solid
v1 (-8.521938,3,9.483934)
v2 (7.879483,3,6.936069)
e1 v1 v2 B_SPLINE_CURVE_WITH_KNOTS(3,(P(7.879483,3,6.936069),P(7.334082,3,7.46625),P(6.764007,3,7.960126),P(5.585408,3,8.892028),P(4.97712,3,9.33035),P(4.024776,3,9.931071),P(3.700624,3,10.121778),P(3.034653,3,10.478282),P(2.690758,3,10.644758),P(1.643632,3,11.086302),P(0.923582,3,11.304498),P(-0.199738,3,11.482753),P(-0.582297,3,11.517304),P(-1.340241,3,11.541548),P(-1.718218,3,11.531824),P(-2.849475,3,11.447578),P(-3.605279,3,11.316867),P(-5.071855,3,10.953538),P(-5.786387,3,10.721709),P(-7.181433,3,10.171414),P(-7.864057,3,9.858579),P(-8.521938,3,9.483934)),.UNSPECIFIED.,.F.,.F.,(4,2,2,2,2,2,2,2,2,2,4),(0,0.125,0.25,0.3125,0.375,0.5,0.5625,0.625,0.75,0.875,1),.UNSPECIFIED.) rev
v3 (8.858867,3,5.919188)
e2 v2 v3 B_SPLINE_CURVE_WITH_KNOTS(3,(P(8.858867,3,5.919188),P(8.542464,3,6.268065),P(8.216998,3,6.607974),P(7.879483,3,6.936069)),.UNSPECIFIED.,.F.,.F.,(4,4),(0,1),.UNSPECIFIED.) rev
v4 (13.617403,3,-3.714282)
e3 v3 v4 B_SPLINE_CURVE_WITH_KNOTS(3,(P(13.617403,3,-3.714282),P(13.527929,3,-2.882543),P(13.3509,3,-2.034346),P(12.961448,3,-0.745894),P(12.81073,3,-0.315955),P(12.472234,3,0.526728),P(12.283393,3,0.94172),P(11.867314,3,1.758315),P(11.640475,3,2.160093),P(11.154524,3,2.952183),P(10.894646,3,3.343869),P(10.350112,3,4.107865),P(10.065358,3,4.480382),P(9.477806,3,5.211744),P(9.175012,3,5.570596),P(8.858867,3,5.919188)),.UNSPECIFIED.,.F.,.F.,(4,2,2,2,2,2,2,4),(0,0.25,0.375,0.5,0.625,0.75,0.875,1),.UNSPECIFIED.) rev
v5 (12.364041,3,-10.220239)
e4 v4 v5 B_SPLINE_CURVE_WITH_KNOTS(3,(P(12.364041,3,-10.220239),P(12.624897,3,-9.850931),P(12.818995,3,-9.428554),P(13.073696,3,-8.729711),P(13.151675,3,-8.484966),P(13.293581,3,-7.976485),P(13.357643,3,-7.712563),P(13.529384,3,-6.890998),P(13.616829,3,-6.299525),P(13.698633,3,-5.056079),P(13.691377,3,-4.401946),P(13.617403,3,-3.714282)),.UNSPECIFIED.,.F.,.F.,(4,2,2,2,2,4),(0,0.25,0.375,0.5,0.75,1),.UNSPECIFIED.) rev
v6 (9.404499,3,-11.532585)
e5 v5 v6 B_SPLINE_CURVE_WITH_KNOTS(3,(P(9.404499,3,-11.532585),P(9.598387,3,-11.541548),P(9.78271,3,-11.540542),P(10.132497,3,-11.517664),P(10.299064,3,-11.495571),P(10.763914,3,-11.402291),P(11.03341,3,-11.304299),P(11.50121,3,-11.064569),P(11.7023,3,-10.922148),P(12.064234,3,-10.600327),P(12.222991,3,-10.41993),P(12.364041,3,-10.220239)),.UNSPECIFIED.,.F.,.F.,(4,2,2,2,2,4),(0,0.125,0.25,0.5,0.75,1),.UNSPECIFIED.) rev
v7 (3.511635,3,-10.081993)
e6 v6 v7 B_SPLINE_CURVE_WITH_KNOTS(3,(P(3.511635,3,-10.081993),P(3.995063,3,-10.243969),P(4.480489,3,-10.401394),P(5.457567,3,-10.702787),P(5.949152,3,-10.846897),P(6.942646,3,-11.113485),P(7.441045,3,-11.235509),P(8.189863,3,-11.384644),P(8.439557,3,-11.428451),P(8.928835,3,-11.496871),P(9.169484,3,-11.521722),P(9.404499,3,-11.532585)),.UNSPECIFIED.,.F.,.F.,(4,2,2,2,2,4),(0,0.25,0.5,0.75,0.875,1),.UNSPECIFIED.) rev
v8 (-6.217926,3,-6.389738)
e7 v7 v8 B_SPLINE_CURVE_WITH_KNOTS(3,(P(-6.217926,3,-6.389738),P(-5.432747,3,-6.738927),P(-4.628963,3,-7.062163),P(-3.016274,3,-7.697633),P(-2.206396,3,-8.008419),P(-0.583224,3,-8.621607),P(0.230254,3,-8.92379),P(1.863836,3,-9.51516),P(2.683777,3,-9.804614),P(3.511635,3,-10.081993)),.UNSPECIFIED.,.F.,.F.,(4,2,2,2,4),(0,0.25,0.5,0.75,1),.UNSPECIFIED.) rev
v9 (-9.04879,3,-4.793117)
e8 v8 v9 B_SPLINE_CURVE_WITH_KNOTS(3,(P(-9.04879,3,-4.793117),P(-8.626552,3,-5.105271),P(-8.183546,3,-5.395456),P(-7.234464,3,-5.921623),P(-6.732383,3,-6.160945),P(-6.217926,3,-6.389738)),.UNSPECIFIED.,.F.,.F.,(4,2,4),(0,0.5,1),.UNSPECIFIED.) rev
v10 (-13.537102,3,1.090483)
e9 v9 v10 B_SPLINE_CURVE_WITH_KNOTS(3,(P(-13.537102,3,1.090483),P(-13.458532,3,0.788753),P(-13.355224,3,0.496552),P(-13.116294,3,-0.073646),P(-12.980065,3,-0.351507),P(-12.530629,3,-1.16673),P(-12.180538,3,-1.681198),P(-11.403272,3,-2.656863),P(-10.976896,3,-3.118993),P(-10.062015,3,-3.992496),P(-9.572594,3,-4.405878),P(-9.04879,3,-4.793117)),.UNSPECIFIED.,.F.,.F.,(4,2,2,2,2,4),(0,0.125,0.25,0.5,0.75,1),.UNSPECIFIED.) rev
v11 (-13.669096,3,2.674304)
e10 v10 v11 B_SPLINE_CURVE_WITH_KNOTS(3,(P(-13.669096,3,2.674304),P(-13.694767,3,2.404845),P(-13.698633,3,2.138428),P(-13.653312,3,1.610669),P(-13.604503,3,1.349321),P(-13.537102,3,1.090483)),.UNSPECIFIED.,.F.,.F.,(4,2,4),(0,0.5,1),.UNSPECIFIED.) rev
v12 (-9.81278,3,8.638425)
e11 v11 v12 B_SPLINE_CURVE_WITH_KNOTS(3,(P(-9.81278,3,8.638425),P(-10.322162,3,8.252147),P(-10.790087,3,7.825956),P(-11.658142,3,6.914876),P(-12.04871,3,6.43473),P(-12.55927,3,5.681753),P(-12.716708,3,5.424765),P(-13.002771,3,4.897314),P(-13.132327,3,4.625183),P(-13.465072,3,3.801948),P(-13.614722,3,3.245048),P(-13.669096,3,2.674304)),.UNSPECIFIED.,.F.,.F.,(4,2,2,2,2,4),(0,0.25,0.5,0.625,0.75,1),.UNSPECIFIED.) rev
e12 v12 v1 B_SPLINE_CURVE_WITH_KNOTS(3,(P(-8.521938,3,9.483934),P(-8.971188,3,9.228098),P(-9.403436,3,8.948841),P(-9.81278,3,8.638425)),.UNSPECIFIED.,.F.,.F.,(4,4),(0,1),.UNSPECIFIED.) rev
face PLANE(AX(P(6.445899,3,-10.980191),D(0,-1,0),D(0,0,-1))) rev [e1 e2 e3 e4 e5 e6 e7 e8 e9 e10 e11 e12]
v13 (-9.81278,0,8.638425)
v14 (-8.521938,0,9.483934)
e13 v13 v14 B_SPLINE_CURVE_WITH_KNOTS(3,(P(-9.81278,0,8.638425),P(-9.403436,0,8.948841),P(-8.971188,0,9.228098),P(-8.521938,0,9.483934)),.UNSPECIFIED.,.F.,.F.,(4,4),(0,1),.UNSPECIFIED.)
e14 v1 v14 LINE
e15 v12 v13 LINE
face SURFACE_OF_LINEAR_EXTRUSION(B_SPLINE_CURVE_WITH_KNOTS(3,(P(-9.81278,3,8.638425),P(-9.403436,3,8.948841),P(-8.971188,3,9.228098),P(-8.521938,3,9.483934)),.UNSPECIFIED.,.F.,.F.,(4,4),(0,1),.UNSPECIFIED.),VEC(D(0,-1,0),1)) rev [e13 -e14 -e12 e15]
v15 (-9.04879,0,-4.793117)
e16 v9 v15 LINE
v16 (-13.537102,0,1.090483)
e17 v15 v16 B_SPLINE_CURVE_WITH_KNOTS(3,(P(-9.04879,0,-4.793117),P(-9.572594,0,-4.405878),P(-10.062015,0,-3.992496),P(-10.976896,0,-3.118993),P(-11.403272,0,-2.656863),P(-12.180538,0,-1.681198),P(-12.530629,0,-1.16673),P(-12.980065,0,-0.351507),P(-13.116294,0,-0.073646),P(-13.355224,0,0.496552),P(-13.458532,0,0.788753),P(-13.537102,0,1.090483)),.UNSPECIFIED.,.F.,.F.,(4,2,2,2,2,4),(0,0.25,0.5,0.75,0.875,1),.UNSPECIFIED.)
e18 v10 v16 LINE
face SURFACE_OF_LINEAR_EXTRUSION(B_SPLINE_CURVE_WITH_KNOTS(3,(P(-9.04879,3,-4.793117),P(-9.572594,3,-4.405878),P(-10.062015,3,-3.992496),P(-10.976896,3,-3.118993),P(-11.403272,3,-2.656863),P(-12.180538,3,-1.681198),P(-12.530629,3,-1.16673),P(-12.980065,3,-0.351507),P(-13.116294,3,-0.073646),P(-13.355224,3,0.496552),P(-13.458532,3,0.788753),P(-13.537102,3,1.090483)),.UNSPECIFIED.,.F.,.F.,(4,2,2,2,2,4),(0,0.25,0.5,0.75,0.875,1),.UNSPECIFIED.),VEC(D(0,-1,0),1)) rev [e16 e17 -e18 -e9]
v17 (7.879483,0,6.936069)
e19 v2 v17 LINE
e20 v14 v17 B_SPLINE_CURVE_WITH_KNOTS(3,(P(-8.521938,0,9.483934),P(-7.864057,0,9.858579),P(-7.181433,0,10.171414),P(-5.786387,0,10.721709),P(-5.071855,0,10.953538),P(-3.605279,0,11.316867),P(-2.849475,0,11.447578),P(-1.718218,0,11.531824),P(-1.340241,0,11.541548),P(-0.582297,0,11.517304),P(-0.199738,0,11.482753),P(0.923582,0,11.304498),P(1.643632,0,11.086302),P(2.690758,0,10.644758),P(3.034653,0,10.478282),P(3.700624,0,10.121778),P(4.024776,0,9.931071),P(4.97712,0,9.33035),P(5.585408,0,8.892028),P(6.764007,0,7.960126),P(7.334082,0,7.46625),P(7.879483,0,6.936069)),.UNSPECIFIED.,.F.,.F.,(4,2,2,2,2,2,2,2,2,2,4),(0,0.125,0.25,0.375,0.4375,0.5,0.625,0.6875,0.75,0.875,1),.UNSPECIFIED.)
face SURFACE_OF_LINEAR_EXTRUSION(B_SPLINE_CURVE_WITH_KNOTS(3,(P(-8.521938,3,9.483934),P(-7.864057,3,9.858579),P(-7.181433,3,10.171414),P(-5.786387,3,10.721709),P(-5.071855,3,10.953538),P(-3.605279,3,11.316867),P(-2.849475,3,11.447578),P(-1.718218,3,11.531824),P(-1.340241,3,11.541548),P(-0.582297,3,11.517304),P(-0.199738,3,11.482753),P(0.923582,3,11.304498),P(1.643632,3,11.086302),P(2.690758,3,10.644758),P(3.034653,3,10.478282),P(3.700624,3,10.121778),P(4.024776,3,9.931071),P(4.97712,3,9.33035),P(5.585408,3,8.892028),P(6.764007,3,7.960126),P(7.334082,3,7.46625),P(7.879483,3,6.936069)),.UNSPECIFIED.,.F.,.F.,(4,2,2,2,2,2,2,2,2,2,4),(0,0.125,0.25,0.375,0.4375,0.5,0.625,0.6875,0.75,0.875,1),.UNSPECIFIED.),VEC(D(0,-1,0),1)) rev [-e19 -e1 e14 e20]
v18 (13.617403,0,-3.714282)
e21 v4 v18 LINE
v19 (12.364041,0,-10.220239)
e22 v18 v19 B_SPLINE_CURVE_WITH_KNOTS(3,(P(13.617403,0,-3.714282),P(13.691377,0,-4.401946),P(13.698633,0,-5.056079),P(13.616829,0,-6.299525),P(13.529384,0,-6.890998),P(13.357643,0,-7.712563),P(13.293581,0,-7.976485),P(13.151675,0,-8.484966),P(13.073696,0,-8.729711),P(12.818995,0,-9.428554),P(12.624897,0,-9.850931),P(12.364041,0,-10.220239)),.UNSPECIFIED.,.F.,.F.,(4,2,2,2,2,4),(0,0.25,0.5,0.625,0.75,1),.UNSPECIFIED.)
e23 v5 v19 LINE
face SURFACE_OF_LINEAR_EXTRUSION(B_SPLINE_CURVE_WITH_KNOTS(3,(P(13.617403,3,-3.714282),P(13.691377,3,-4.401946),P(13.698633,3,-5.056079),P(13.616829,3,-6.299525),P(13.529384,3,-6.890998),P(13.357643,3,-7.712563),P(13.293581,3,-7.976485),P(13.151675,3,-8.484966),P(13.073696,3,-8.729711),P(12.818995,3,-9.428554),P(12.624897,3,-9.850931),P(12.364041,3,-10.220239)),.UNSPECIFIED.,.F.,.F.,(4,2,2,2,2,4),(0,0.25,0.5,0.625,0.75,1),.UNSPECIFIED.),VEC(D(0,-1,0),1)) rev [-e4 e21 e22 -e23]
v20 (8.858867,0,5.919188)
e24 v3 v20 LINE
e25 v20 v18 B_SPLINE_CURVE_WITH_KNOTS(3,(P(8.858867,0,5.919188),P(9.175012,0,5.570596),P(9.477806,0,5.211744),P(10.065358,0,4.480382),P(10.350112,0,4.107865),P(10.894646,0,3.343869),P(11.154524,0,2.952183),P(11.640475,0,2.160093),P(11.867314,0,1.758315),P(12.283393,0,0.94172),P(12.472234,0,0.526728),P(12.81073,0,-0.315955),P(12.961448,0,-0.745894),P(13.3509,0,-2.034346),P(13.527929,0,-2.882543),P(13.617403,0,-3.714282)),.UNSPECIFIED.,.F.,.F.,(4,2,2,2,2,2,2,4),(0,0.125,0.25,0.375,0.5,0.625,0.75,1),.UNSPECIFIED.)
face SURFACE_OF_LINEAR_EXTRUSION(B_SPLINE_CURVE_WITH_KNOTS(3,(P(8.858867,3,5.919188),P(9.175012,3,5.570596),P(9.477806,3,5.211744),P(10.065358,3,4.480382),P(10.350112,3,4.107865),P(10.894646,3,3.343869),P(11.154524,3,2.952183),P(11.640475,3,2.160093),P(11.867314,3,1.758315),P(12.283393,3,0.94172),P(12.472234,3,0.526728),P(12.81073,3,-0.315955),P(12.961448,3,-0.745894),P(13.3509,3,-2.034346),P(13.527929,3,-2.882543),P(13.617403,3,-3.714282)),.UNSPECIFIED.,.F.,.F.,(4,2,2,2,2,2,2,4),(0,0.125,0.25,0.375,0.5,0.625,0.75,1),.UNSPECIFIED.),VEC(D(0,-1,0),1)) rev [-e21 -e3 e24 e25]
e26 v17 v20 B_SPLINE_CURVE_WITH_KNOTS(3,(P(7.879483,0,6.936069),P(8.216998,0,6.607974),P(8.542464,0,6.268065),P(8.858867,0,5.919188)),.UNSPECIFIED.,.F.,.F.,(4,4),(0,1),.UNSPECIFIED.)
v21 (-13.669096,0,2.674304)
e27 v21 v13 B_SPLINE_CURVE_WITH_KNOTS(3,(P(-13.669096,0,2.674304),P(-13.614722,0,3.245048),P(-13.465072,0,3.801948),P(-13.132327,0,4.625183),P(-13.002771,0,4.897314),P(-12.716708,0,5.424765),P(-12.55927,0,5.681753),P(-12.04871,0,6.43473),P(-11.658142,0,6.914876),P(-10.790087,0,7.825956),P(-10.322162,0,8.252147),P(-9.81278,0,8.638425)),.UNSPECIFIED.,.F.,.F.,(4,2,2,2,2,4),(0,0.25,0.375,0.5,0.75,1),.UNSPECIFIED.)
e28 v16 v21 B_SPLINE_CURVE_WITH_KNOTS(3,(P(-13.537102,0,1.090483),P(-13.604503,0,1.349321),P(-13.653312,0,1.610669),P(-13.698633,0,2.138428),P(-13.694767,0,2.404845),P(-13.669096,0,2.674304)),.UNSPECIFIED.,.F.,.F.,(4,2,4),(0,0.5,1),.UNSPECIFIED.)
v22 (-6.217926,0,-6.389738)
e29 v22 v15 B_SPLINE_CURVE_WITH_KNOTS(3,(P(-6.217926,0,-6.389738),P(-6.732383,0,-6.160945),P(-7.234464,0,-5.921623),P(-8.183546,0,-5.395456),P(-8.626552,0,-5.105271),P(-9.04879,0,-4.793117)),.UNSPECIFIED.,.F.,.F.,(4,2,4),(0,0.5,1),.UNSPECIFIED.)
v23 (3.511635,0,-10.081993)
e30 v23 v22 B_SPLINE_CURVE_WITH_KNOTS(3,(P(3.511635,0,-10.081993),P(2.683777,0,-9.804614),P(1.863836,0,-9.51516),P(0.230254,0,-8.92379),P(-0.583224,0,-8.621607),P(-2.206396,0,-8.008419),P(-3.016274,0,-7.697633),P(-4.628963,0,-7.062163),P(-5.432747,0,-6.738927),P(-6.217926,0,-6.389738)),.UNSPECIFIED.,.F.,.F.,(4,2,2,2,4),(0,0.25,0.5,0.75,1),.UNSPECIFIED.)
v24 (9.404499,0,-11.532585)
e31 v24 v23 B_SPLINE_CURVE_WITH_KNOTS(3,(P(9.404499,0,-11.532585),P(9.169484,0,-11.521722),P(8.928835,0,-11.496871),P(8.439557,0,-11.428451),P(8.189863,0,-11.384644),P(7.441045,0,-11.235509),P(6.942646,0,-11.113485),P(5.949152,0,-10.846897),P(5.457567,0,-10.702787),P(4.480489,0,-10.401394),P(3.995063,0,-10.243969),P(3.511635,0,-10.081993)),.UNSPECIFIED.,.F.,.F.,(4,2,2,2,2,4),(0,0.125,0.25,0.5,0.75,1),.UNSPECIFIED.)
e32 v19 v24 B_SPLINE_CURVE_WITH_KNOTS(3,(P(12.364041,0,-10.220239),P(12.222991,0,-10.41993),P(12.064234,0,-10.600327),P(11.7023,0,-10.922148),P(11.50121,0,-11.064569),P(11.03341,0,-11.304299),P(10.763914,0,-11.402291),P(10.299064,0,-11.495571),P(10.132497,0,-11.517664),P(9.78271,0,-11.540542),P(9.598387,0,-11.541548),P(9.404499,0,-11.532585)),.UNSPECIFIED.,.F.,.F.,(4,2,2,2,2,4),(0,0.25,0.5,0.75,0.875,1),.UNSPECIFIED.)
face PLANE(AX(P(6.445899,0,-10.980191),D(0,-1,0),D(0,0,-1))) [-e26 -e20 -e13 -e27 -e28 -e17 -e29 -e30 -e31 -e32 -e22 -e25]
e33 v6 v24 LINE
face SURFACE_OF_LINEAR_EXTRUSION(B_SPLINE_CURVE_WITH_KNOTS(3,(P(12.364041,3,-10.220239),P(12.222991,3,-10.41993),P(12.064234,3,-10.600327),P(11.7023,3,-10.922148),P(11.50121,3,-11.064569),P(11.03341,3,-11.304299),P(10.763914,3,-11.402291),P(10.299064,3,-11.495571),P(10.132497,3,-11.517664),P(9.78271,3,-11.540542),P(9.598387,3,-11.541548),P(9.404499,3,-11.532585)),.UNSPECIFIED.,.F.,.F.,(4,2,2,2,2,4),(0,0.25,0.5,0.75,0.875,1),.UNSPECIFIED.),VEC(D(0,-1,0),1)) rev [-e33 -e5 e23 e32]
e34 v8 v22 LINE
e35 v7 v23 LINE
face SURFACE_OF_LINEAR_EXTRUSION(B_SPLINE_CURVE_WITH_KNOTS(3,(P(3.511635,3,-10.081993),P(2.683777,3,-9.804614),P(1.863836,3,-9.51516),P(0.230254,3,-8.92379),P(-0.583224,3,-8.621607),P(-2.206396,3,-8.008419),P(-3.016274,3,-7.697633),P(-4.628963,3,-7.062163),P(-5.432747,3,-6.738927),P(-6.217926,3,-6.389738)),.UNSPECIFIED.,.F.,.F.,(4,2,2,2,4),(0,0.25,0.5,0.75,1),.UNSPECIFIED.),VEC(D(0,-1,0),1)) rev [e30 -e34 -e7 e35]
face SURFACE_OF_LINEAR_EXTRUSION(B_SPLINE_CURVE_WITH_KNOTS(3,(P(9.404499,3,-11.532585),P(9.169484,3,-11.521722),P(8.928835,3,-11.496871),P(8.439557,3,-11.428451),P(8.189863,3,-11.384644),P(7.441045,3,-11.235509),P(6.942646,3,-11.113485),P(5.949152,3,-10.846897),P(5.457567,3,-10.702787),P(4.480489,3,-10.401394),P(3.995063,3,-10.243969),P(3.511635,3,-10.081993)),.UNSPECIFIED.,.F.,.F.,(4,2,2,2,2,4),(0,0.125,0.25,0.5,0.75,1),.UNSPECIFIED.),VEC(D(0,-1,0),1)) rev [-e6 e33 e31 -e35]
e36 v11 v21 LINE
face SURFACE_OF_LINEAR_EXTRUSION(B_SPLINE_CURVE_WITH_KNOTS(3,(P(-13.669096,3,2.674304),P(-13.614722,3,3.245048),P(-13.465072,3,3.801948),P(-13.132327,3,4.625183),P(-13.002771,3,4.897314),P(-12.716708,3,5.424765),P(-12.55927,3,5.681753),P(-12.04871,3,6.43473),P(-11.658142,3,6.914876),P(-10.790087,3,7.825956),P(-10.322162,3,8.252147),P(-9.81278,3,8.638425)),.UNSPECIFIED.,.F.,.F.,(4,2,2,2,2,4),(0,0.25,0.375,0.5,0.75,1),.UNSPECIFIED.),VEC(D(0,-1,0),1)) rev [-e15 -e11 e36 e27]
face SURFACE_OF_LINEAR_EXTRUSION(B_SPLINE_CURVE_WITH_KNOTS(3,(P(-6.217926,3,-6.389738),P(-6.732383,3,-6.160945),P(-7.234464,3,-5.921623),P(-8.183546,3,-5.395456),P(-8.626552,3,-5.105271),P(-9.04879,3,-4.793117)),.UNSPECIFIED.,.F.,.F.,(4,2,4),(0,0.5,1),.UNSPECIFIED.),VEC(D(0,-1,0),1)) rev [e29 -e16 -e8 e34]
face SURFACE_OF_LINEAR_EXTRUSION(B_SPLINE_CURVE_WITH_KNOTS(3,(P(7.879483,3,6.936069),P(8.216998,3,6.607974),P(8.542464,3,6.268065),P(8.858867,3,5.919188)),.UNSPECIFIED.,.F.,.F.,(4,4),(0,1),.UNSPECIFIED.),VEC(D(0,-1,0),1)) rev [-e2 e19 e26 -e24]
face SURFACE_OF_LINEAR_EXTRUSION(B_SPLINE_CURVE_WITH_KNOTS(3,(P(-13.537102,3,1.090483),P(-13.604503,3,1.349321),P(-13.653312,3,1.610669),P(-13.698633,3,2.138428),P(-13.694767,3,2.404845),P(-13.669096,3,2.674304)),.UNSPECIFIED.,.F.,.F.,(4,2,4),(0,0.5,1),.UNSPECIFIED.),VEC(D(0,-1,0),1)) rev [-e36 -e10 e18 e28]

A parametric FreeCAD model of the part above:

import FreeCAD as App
import Part
import Sketcher

V = App.Vector

doc = App.newDocument("Part")
body = doc.addObject("PartDesign::Body", "Body")

sketch1 = body.newObject("Sketcher::SketchObject", "Sketch")
sketch1.AttachmentSupport = (doc.getObject("XZ_Plane"), [""])
sketch1.MapMode = "FlatFace"
sketch1.addGeometry(Part.BSplineCurve([V(3.511635, -10.081993, 0), V(2.683777, -9.804614, 0), V(1.863836, -9.51516, 0), V(0.230254, -8.92379, 0), V(-0.583224, -8.621607, 0), V(-2.206396, -8.008419, 0), V(-3.016274, -7.697633, 0), V(-4.628963, -7.062163, 0), V(-5.432747, -6.738927, 0), V(-6.217926, -6.389738, 0)], [4, 2, 2, 2, 4], [0, 0.25, 0.5, 0.75, 1], False, 3, [1, 1, 1, 1, 1, 1, 1, 1, 1, 1], False), False)
sketch1.addGeometry(Part.BSplineCurve([V(-6.217926, -6.389738, 0), V(-6.732383, -6.160945, 0), V(-7.234464, -5.921623, 0), V(-8.183546, -5.395456, 0), V(-8.626552, -5.105271, 0), V(-9.04879, -4.793117, 0)], [4, 2, 4], [0, 0.5, 1], False, 3, [1, 1, 1, 1, 1, 1], False), False)
sketch1.addGeometry(Part.BSplineCurve([V(-9.04879, -4.793117, 0), V(-9.572594, -4.405878, 0), V(-10.062015, -3.992496, 0), V(-10.976896, -3.118993, 0), V(-11.403272, -2.656863, 0), V(-12.180538, -1.681198, 0), V(-12.530629, -1.16673, 0), V(-12.980065, -0.351507, 0), V(-13.116294, -0.073646, 0), V(-13.355224, 0.496552, 0), V(-13.458532, 0.788753, 0), V(-13.537102, 1.090483, 0)], [4, 2, 2, 2, 2, 4], [0, 0.25, 0.5, 0.75, 0.875, 1], False, 3, [1, 1, 1, 1, 1, 1, 1, 1, 1, 1, 1, 1], False), False)
sketch1.addGeometry(Part.BSplineCurve([V(-13.537102, 1.090483, 0), V(-13.604503, 1.349321, 0), V(-13.653312, 1.610669, 0), V(-13.698633, 2.138428, 0), V(-13.694767, 2.404845, 0), V(-13.669096, 2.674304, 0)], [4, 2, 4], [0, 0.5, 1], False, 3, [1, 1, 1, 1, 1, 1], False), False)
sketch1.addGeometry(Part.BSplineCurve([V(-13.669096, 2.674304, 0), V(-13.614722, 3.245048, 0), V(-13.465072, 3.801948, 0), V(-13.132327, 4.625183, 0), V(-13.002771, 4.897314, 0), V(-12.716708, 5.424765, 0), V(-12.55927, 5.681753, 0), V(-12.04871, 6.43473, 0), V(-11.658142, 6.914876, 0), V(-10.790087, 7.825956, 0), V(-10.322162, 8.252147, 0), V(-9.81278, 8.638425, 0)], [4, 2, 2, 2, 2, 4], [0, 0.25, 0.375, 0.5, 0.75, 1], False, 3, [1, 1, 1, 1, 1, 1, 1, 1, 1, 1, 1, 1], False), False)
sketch1.addGeometry(Part.BSplineCurve([V(-9.81278, 8.638425, 0), V(-9.403436, 8.948841, 0), V(-8.971188, 9.228098, 0), V(-8.521938, 9.483934, 0)], [4, 4], [0, 1], False, 3, [1, 1, 1, 1], False), False)
sketch1.addGeometry(Part.BSplineCurve([V(-8.521938, 9.483934, 0), V(-7.864057, 9.858579, 0), V(-7.181433, 10.171414, 0), V(-5.786387, 10.721709, 0), V(-5.071855, 10.953538, 0), V(-3.605279, 11.316867, 0), V(-2.849475, 11.447578, 0), V(-1.718218, 11.531824, 0), V(-1.340241, 11.541548, 0), V(-0.582297, 11.517304, 0), V(-0.199738, 11.482753, 0), V(0.923582, 11.304498, 0), V(1.643632, 11.086302, 0), V(2.690758, 10.644758, 0), V(3.034653, 10.478282, 0), V(3.700624, 10.121778, 0), V(4.024776, 9.931071, 0), V(4.97712, 9.33035, 0), V(5.585408, 8.892028, 0), V(6.764007, 7.960126, 0), V(7.334082, 7.46625, 0), V(7.879483, 6.936069, 0)], [4, 2, 2, 2, 2, 2, 2, 2, 2, 2, 4], [0, 0.125, 0.25, 0.375, 0.4375, 0.5, 0.625, 0.6875, 0.75, 0.875, 1], False, 3, [1, 1, 1, 1, 1, 1, 1, 1, 1, 1, 1, 1, 1, 1, 1, 1, 1, 1, 1, 1, 1, 1], False), False)
sketch1.addGeometry(Part.BSplineCurve([V(7.879483, 6.936069, 0), V(8.216998, 6.607974, 0), V(8.542464, 6.268065, 0), V(8.858867, 5.919188, 0)], [4, 4], [0, 1], False, 3, [1, 1, 1, 1], False), False)
sketch1.addGeometry(Part.BSplineCurve([V(8.858867, 5.919188, 0), V(9.175012, 5.570596, 0), V(9.477806, 5.211744, 0), V(10.065358, 4.480382, 0), V(10.350112, 4.107865, 0), V(10.894646, 3.343869, 0), V(11.154524, 2.952183, 0), V(11.640475, 2.160093, 0), V(11.867314, 1.758315, 0), V(12.283393, 0.94172, 0), V(12.472234, 0.526728, 0), V(12.81073, -0.315955, 0), V(12.961448, -0.745894, 0), V(13.3509, -2.034346, 0), V(13.527929, -2.882543, 0), V(13.617403, -3.714282, 0)], [4, 2, 2, 2, 2, 2, 2, 4], [0, 0.125, 0.25, 0.375, 0.5, 0.625, 0.75, 1], False, 3, [1, 1, 1, 1, 1, 1, 1, 1, 1, 1, 1, 1, 1, 1, 1, 1], False), False)
sketch1.addGeometry(Part.BSplineCurve([V(13.617403, -3.714282, 0), V(13.691377, -4.401946, 0), V(13.698633, -5.056079, 0), V(13.616829, -6.299525, 0), V(13.529384, -6.890998, 0), V(13.357643, -7.712563, 0), V(13.293581, -7.976485, 0), V(13.151675, -8.484966, 0), V(13.073696, -8.729711, 0), V(12.818995, -9.428554, 0), V(12.624897, -9.850931, 0), V(12.364041, -10.220239, 0)], [4, 2, 2, 2, 2, 4], [0, 0.25, 0.5, 0.625, 0.75, 1], False, 3, [1, 1, 1, 1, 1, 1, 1, 1, 1, 1, 1, 1], False), False)
sketch1.addGeometry(Part.BSplineCurve([V(12.364041, -10.220239, 0), V(12.222991, -10.41993, 0), V(12.064234, -10.600327, 0), V(11.7023, -10.922148, 0), V(11.50121, -11.064569, 0), V(11.03341, -11.304299, 0), V(10.763914, -11.402291, 0), V(10.299064, -11.495571, 0), V(10.132497, -11.517664, 0), V(9.78271, -11.540542, 0), V(9.598387, -11.541548, 0), V(9.404499, -11.532585, 0)], [4, 2, 2, 2, 2, 4], [0, 0.25, 0.5, 0.75, 0.875, 1], False, 3, [1, 1, 1, 1, 1, 1, 1, 1, 1, 1, 1, 1], False), False)
sketch1.addGeometry(Part.BSplineCurve([V(9.404499, -11.532585, 0), V(9.169484, -11.521722, 0), V(8.928835, -11.496871, 0), V(8.439557, -11.428451, 0), V(8.189863, -11.384644, 0), V(7.441045, -11.235509, 0), V(6.942646, -11.113485, 0), V(5.949152, -10.846897, 0), V(5.457567, -10.702787, 0), V(4.480489, -10.401394, 0), V(3.995063, -10.243969, 0), V(3.511635, -10.081993, 0)], [4, 2, 2, 2, 2, 4], [0, 0.125, 0.25, 0.5, 0.75, 1], False, 3, [1, 1, 1, 1, 1, 1, 1, 1, 1, 1, 1, 1], False), False)
sketch1.addConstraint(Sketcher.Constraint("Block", 0))
sketch1.addConstraint(Sketcher.Constraint("Block", 1))
sketch1.addConstraint(Sketcher.Constraint("Block", 2))
sketch1.addConstraint(Sketcher.Constraint("Block", 3))
sketch1.addConstraint(Sketcher.Constraint("Block", 4))
sketch1.addConstraint(Sketcher.Constraint("Block", 5))
sketch1.addConstraint(Sketcher.Constraint("Block", 6))
sketch1.addConstraint(Sketcher.Constraint("Block", 7))
sketch1.addConstraint(Sketcher.Constraint("Block", 8))
sketch1.addConstraint(Sketcher.Constraint("Block", 9))
sketch1.addConstraint(Sketcher.Constraint("Block", 10))
sketch1.addConstraint(Sketcher.Constraint("Block", 11))
pad1 = body.newObject("PartDesign::Pad", "Pad")
pad1.Profile = sketch1
pad1.Length = 3
pad1.Reversed = True

doc.recompute()
